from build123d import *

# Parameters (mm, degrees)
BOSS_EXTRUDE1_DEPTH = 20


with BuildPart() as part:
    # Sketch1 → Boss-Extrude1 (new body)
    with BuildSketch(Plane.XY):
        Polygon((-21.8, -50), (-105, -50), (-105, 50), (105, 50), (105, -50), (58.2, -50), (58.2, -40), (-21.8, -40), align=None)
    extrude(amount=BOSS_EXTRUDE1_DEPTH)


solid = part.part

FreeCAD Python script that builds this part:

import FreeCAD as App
import Part
import Sketcher
from FreeCAD import Vector

doc = App.newDocument("Part")
body = doc.addObject("PartDesign::Body", "Body")

sketch1 = body.newObject("Sketcher::SketchObject", "Sketch")
sketch1.AttachmentSupport = (doc.getObject("XY_Plane"), [""])
sketch1.MapMode = "FlatFace"
sketch1.addGeometry([
    Part.LineSegment(Vector(-105, -50, 0), Vector(-22, -50, 0)),
    Part.LineSegment(Vector(-22, -50, 0), Vector(-22, -40, 0)),
    Part.LineSegment(Vector(-22, -40, 0), Vector(58, -40, 0)),
    Part.LineSegment(Vector(58, -40, 0), Vector(58, -50, 0)),
    Part.LineSegment(Vector(58, -50, 0), Vector(105, -50, 0)),
    Part.LineSegment(Vector(105, -50, 0), Vector(105, 50, 0)),
    Part.LineSegment(Vector(105, 50, 0), Vector(-105, 50, 0)),
    Part.LineSegment(Vector(-105, 50, 0), Vector(-105, -50, 0)),
], False)
sketch1.addConstraint([
    Sketcher.Constraint("Coincident", 0, 2, 1, 1),
    Sketcher.Constraint("Coincident", 1, 2, 2, 1),
    Sketcher.Constraint("Coincident", 2, 2, 3, 1),
    Sketcher.Constraint("Coincident", 3, 2, 4, 1),
    Sketcher.Constraint("Coincident", 4, 2, 5, 1),
    Sketcher.Constraint("Coincident", 5, 2, 6, 1),
    Sketcher.Constraint("Coincident", 6, 2, 7, 1),
    Sketcher.Constraint("Coincident", 7, 2, 0, 1),
    Sketcher.Constraint("Horizontal", 0),
    Sketcher.Constraint("Vertical", 1),
    Sketcher.Constraint("Horizontal", 2),
    Sketcher.Constraint("Vertical", 3),
    Sketcher.Constraint("Horizontal", 4),
    Sketcher.Constraint("Vertical", 5),
    Sketcher.Constraint("Horizontal", 6),
    Sketcher.Constraint("Vertical", 7),
    Sketcher.Constraint("Symmetric", 4, 2, 6, 2, -1, 1),
    Sketcher.Constraint("Horizontal", 0, 2, 3, 2),
    Sketcher.Constraint("DistanceX", 2, 1, 2, 2, 80.0),
    Sketcher.Constraint("DistanceX", 6, 2, 6, 1, 210.0),
    Sketcher.Constraint("DistanceY", 1, 1, 1, 2, 10.0),
    Sketcher.Constraint("DistanceY", 5, 1, 5, 2, 100.0),
    Sketcher.Constraint("DistanceX", 0, 1, 0, 2, 83.2),
])
pad1 = body.newObject("PartDesign::Pad", "Pad")
pad1.Profile = sketch1
pad1.Length = 20

doc.recompute()
